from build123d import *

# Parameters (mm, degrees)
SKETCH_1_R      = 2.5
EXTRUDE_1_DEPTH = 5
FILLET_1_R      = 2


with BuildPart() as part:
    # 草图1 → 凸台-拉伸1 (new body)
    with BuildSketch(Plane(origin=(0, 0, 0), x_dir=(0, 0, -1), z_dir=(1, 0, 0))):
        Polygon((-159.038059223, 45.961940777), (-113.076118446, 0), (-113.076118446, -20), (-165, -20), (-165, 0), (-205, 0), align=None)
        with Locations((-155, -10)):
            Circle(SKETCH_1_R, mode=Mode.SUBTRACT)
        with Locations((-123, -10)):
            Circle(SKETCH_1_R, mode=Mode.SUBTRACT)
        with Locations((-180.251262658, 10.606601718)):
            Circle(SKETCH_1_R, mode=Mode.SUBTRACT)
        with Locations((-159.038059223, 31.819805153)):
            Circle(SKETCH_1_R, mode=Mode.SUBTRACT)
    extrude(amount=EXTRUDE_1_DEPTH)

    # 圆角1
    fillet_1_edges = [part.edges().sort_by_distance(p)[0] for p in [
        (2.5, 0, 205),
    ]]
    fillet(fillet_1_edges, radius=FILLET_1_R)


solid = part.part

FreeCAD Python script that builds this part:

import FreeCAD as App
import Part
import Sketcher
from FreeCAD import Vector
Q = App.Units.Quantity


def edges_at(feature, points):
    """Names of the edges that pass closest to the given points."""
    edges = feature.Shape.Edges
    near = lambda p: min(range(len(edges)), key=lambda i: edges[i].distToShape(Part.Vertex(*p))[0])
    return sorted({f"Edge{near(p) + 1}" for p in points})

doc = App.newDocument("Part")
body = doc.addObject("PartDesign::Body", "Body")

# Sketch on YZ plane
sketch1 = body.newObject("Sketcher::SketchObject", "Sketch")
sketch1.AttachmentSupport = (doc.getObject("YZ_Plane"), [""])
sketch1.MapMode = "FlatFace"
sketch1.addGeometry(Part.LineSegment(Vector(0, 113.1, 0), Vector(46, 159, 0)), False)
sketch1.addGeometry(Part.LineSegment(Vector(46, 159, 0), Vector(0, 205, 0)), False)
sketch1.addGeometry(Part.LineSegment(Vector(0, 205, 0), Vector(0, 165, 0)), False)
sketch1.addGeometry(Part.LineSegment(Vector(0, 165, 0), Vector(-20, 165, 0)), False)
sketch1.addGeometry(Part.LineSegment(Vector(-20, 165, 0), Vector(-20, 113.1, 0)), False)
sketch1.addGeometry(Part.LineSegment(Vector(-20, 113.1, 0), Vector(0, 113.1, 0)), False)
sketch1.addGeometry(Part.Circle(Vector(-10, 123, 0), Vector(0, 0, 1), 2.5), False)
sketch1.addGeometry(Part.Circle(Vector(-10, 155, 0), Vector(0, 0, 1), 2.5), False)
sketch1.addGeometry(Part.Circle(Vector(10.6, 180.3, 0), Vector(0, 0, 1), 2.5), False)
sketch1.addGeometry(Part.Circle(Vector(31.8, 159, 0), Vector(0, 0, 1), 2.5), False)
sketch1.addConstraint(Sketcher.Constraint("Coincident", 0, 2, 1, 1))
sketch1.addConstraint(Sketcher.Constraint("Coincident", 1, 2, 2, 1))
sketch1.addConstraint(Sketcher.Constraint("Coincident", 2, 2, 3, 1))
sketch1.addConstraint(Sketcher.Constraint("Coincident", 3, 2, 4, 1))
sketch1.addConstraint(Sketcher.Constraint("Coincident", 4, 2, 5, 1))
sketch1.addConstraint(Sketcher.Constraint("Coincident", 5, 2, 0, 1))
sketch1.addConstraint(Sketcher.Constraint("Vertical", 2))
sketch1.addConstraint(Sketcher.Constraint("Horizontal", 3))
sketch1.addConstraint(Sketcher.Constraint("Vertical", 4))
sketch1.addConstraint(Sketcher.Constraint("Horizontal", 5))
sketch1.addConstraint(Sketcher.Constraint("Equal", 6, 7))
sketch1.addConstraint(Sketcher.Constraint("Equal", 7, 8))
sketch1.addConstraint(Sketcher.Constraint("Equal", 8, 9))
sketch1.addConstraint(Sketcher.Constraint("PointOnObject", 1, 2, -2))
sketch1.addConstraint(Sketcher.Constraint("PointOnObject", 5, 2, -2))
sketch1.addConstraint(Sketcher.Constraint("Perpendicular", 0, 1))
sketch1.addConstraint(Sketcher.Constraint("Horizontal", 9, 3, 0, 2))
sketch1.addConstraint(Sketcher.Constraint("Vertical", 6, 3, 7, 3))
sketch1.addConstraint(Sketcher.Constraint("Equal", 0, 1))
sketch1.addConstraint(Sketcher.Constraint("Diameter", 6, Q("5 mm")))
sketch1.addConstraint(Sketcher.Constraint("DistanceX", 3, 2, 3, 1, Q("20 mm")))
sketch1.addConstraint(Sketcher.Constraint("DistanceY", 2, 2, 2, 1, Q("40 mm")))
sketch1.addConstraint(Sketcher.Constraint("Distance", 0, Q("65 mm")))
sketch1.addConstraint(Sketcher.Constraint("DistanceX", 6, 3, -1, 1, Q("10 mm")))
sketch1.addConstraint(Sketcher.Constraint("DistanceY", -1, 1, 6, 3, Q("123 mm")))
sketch1.addConstraint(Sketcher.Constraint("DistanceY", -1, 1, 7, 3, Q("155 mm")))
sketch1.addConstraint(Sketcher.Constraint("DistanceY", -1, 1, 1, 2, Q("205 mm")))
sketch1.addConstraint(Sketcher.Constraint("DistanceX", -1, 1, 8, 3, Q("10.606602 mm")))
sketch1.addConstraint(Sketcher.Constraint("DistanceY", -1, 1, 8, 3, Q("180.251263 mm")))
sketch1.addConstraint(Sketcher.Constraint("DistanceX", -1, 1, 9, 3, Q("31.819805 mm")))
pad1 = body.newObject("PartDesign::Pad", "Pad")
pad1.Profile = sketch1
pad1.Length = 5
doc.recompute()

fillet = body.newObject("PartDesign::Fillet", "Fillet")
fillet.Base = (pad1, edges_at(pad1, [(2.5, 0, 205)]))
fillet.Radius = 2

doc.recompute()
